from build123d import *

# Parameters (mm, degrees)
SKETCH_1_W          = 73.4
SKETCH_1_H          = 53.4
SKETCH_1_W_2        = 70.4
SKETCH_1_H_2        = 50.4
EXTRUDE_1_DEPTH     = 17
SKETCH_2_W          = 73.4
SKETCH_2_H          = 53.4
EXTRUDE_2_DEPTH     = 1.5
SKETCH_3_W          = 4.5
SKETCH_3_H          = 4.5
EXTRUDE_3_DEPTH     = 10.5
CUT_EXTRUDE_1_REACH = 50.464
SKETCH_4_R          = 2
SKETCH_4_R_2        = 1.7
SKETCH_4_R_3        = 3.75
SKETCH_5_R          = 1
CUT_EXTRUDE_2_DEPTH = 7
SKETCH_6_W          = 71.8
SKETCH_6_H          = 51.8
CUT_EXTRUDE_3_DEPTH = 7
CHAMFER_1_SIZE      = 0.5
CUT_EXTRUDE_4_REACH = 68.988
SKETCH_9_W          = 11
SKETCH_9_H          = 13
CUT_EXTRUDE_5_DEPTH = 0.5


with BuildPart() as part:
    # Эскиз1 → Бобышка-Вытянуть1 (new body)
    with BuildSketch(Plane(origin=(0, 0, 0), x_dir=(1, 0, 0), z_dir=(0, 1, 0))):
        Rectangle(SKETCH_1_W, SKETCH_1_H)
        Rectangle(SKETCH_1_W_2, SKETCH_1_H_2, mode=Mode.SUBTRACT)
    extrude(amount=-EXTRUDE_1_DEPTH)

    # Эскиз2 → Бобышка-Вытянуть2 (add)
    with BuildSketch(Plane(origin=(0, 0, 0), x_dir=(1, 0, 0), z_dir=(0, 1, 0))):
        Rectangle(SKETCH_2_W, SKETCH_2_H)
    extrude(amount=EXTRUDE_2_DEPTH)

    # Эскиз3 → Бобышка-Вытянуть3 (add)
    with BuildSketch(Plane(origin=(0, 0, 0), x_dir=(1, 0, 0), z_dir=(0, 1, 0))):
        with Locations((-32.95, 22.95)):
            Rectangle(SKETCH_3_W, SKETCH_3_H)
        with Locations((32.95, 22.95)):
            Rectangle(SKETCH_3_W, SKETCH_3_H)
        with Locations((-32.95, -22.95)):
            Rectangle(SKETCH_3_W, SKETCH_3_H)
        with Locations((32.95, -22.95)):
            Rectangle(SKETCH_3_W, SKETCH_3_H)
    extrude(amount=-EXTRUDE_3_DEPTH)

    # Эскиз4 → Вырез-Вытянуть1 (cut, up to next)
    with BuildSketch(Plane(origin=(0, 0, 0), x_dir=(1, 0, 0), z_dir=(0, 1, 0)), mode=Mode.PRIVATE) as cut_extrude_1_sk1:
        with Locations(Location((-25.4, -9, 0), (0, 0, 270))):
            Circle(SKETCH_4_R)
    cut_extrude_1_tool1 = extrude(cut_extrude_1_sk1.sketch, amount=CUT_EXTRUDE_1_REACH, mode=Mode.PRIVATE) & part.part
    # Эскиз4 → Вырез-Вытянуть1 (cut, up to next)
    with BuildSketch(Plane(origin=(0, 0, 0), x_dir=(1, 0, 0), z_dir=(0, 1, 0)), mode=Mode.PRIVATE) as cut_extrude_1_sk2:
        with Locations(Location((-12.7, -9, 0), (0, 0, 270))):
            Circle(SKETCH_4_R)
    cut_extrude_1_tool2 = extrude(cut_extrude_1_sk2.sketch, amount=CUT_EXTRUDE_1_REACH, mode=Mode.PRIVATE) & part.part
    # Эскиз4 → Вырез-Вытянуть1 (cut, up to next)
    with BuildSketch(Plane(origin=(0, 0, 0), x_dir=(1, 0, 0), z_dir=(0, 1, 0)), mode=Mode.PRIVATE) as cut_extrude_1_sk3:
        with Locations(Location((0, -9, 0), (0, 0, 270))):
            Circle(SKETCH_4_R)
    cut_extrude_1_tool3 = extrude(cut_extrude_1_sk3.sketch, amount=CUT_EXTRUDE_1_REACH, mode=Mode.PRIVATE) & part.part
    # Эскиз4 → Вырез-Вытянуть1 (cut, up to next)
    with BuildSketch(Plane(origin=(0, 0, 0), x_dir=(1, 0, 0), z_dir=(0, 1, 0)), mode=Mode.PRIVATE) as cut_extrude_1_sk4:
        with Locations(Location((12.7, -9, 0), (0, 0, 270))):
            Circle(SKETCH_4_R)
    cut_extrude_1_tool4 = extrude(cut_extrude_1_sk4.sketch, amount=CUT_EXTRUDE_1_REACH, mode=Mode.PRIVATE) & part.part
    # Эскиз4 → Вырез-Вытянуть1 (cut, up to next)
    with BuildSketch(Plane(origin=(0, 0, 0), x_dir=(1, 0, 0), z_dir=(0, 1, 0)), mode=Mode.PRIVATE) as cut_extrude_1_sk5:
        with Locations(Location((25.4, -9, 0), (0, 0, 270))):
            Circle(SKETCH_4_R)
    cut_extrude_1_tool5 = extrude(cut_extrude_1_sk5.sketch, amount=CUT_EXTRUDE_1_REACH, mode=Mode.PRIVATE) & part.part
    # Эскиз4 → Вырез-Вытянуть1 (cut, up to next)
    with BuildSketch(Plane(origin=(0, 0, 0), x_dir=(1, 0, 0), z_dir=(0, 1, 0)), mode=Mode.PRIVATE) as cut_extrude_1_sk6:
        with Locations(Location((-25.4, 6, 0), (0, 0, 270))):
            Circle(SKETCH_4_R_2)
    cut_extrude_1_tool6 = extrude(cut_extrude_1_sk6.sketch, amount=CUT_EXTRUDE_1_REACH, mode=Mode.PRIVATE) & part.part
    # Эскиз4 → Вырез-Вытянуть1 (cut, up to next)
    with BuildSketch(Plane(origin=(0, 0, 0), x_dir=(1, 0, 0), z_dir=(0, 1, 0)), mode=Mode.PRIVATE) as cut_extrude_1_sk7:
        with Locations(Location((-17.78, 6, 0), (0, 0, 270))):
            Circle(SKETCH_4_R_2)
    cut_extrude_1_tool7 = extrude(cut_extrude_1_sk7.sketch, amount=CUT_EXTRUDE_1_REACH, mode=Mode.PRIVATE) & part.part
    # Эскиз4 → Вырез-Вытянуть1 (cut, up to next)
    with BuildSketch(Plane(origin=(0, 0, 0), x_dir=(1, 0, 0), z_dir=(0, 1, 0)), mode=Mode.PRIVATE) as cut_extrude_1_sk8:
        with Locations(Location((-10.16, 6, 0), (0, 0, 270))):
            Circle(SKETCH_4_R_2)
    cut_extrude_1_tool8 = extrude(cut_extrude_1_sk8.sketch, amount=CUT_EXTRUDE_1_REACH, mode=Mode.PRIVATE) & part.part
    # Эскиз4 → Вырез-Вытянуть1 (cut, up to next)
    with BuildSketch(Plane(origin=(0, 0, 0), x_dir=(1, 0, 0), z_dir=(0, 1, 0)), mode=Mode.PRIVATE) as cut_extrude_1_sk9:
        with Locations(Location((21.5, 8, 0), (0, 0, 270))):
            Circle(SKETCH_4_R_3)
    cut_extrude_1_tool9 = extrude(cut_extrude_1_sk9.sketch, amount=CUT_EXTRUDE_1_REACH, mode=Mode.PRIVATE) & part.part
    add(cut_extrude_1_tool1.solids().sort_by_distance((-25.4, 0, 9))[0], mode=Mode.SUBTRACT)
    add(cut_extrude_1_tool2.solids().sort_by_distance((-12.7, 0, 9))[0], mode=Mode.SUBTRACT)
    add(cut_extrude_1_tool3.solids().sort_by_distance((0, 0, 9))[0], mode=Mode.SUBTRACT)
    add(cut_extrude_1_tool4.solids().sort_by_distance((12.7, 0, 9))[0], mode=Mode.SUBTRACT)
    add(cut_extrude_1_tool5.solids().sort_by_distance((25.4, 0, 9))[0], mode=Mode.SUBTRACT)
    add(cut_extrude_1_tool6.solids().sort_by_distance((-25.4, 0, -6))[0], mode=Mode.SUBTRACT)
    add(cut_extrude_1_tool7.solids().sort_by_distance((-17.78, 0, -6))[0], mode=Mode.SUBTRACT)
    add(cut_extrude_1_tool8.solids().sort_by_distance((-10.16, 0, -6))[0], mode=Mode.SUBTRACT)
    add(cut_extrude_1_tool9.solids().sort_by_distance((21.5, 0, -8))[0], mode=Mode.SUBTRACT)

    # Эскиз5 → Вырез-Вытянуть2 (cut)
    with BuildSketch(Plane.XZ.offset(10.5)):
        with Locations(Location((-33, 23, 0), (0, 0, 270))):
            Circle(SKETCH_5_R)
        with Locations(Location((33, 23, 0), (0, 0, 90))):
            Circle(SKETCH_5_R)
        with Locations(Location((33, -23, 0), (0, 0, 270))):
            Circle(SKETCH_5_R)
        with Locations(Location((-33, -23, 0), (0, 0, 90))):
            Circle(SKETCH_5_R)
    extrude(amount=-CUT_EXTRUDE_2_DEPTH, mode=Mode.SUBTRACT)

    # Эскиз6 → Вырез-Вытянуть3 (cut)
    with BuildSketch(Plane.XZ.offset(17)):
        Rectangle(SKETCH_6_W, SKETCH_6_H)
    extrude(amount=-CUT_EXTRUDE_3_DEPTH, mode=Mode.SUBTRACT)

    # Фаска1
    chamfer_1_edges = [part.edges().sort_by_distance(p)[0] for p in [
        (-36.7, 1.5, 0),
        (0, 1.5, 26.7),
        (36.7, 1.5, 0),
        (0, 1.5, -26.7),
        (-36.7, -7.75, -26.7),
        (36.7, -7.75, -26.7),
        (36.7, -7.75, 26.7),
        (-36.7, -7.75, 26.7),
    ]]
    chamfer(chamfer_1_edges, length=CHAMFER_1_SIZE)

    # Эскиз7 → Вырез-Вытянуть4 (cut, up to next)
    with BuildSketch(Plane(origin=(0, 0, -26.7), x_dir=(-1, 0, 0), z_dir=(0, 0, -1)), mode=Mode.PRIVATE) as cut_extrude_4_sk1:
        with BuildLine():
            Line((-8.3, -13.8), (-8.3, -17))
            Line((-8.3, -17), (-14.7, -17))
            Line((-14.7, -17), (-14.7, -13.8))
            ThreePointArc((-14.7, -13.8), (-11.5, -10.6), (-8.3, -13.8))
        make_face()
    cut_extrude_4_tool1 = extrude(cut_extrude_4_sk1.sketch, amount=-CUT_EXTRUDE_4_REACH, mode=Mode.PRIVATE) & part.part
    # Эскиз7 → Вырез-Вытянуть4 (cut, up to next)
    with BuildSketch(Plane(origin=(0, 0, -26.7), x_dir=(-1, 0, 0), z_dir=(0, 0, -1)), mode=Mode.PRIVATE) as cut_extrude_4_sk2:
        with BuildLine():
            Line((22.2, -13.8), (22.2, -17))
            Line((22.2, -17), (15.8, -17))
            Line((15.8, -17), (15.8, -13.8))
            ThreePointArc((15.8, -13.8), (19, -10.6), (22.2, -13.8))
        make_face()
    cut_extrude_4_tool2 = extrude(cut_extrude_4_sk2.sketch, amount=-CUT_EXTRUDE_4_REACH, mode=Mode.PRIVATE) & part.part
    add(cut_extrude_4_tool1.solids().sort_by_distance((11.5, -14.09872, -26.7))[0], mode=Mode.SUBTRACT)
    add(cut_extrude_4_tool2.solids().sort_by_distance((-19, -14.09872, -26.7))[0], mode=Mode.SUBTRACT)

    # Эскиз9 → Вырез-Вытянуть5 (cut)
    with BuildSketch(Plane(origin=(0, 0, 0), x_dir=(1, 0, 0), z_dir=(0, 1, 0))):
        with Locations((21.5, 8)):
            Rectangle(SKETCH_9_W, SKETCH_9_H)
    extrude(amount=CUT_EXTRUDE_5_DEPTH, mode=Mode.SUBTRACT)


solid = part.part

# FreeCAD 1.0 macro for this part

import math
import FreeCAD as App
import Part
import Sketcher

V = App.Vector


def edges_at(feature, points):
    """Names of the edges that pass closest to the given points."""
    edges = feature.Shape.Edges
    near = lambda p: min(range(len(edges)), key=lambda i: edges[i].distToShape(Part.Vertex(*p))[0])
    return sorted({f"Edge{near(p) + 1}" for p in points})


def add_polygon(sketch, points):
    """Adds a closed chain of lines whose ends are joined by coincident constraints."""
    first, n = sketch.GeometryCount, len(points)
    for a, b in zip(points, points[1:] + points[:1]):
        sketch.addGeometry(Part.LineSegment(App.Vector(*a, 0), App.Vector(*b, 0)), False)
    for i in range(n):
        sketch.addConstraint(Sketcher.Constraint("Coincident", first + i, 2, first + (i + 1) % n, 1))

doc = App.newDocument("Part")
body = doc.addObject("PartDesign::Body", "Body")

# Sketch on XZ plane
sketch1 = doc.addObject("Sketcher::SketchObject", "Sketch")
body.addObject(sketch1)
sketch1.AttachmentSupport = (doc.XZ_Plane, [""])
sketch1.MapMode = "FlatFace"
add_polygon(sketch1, [(-37, -27), (-37, 27), (37, 27), (37, -27)])  # lines 0-3
add_polygon(sketch1, [(35, 25), (-35, 25), (-35, -25), (35, -25)])  # lines 4-7
sketch1.addConstraint([
    Sketcher.Constraint("Vertical", 0),
    Sketcher.Constraint("Horizontal", 1),
    Sketcher.Constraint("Vertical", 2),
    Sketcher.Constraint("Horizontal", 3),
    Sketcher.Constraint("Horizontal", 4),
    Sketcher.Constraint("Vertical", 5),
    Sketcher.Constraint("Horizontal", 6),
    Sketcher.Constraint("Vertical", 7),
    Sketcher.Constraint("Symmetric", 0, 2, 2, 2, -1, 1),
    Sketcher.Constraint("Symmetric", 4, 2, 6, 2, -1, 1),
    Sketcher.Constraint("DistanceX", 1, 1, 1, 2, 73.4),
    Sketcher.Constraint("DistanceX", 4, 2, 4, 1, 70.4),
    Sketcher.Constraint("DistanceY", 0, 1, 0, 2, 53.4),
    Sketcher.Constraint("DistanceY", 5, 2, 5, 1, 50.4),
])
pad1 = doc.addObject("PartDesign::Pad", "Pad")
body.addObject(pad1)
pad1.Profile = sketch1
pad1.Length = 17

# Sketch on XZ plane
sketch2 = doc.addObject("Sketcher::SketchObject", "Sketch001")
body.addObject(sketch2)
sketch2.AttachmentSupport = (doc.XZ_Plane, [""])
sketch2.MapMode = "FlatFace"
add_polygon(sketch2, [(-37, -27), (-37, 27), (37, 27), (37, -27)])  # lines 0-3
sketch2.addConstraint([
    Sketcher.Constraint("Vertical", 0),
    Sketcher.Constraint("Horizontal", 1),
    Sketcher.Constraint("Vertical", 2),
    Sketcher.Constraint("Horizontal", 3),
    Sketcher.Constraint("Symmetric", 0, 2, 2, 2, -1, 1),
    Sketcher.Constraint("DistanceX", 1, 1, 1, 2, 73.4),
    Sketcher.Constraint("DistanceY", 0, 1, 0, 2, 53.4),
])
pad2 = doc.addObject("PartDesign::Pad", "Pad001")
body.addObject(pad2)
pad2.Profile = sketch2
pad2.Length = 1.5
pad2.Reversed = True

# Sketch on XZ plane
sketch3 = doc.addObject("Sketcher::SketchObject", "Sketch002")
body.addObject(sketch3)
sketch3.AttachmentSupport = (doc.XZ_Plane, [""])
sketch3.MapMode = "FlatFace"
add_polygon(sketch3, [(-35.2, -25.2), (-35.2, -20.7), (-30.7, -20.7), (-30.7, -25.2)])  # lines 0-3
add_polygon(sketch3, [(30.7, -25.2), (30.7, -20.7), (35.2, -20.7), (35.2, -25.2)])  # lines 4-7
add_polygon(sketch3, [(-35.2, 20.7), (-35.2, 25.2), (-30.7, 25.2), (-30.7, 20.7)])  # lines 8-11
add_polygon(sketch3, [(30.7, 20.7), (30.7, 25.2), (35.2, 25.2), (35.2, 20.7)])  # lines 12-15
sketch3.addConstraint([
    Sketcher.Constraint("Vertical", 0),
    Sketcher.Constraint("Horizontal", 1),
    Sketcher.Constraint("Vertical", 2),
    Sketcher.Constraint("Horizontal", 3),
    Sketcher.Constraint("Vertical", 4),
    Sketcher.Constraint("Horizontal", 5),
    Sketcher.Constraint("Vertical", 6),
    Sketcher.Constraint("Horizontal", 7),
    Sketcher.Constraint("Vertical", 8),
    Sketcher.Constraint("Horizontal", 9),
    Sketcher.Constraint("Vertical", 10),
    Sketcher.Constraint("Horizontal", 11),
    Sketcher.Constraint("Vertical", 12),
    Sketcher.Constraint("Horizontal", 13),
    Sketcher.Constraint("Vertical", 14),
    Sketcher.Constraint("Horizontal", 15),
    Sketcher.Constraint("Symmetric", 6, 2, 8, 2, -1, 1),
    Sketcher.Constraint("Symmetric", 4, 2, 10, 2, -1, 1),
    Sketcher.Constraint("Symmetric", 2, 2, 12, 2, -1, 1),
    Sketcher.Constraint("Symmetric", 0, 2, 14, 2, -1, 1),
    Sketcher.Constraint("Symmetric", 1, 2, 4, 2, -2),
    Sketcher.Constraint("Symmetric", 3, 2, 6, 2, -2),
    Sketcher.Constraint("Equal", 15, 0),
    Sketcher.Constraint("DistanceX", 1, 1, 1, 2, 4.5),
    Sketcher.Constraint("DistanceX", 0, 2, -1, 1, 35.2),
    Sketcher.Constraint("DistanceY", 0, 2, -1, 1, 20.7),
])
pad3 = doc.addObject("PartDesign::Pad", "Pad002")
body.addObject(pad3)
pad3.Profile = sketch3
pad3.Length = 10.5

# Sketch on XZ plane
sketch4 = doc.addObject("Sketcher::SketchObject", "Sketch003")
body.addObject(sketch4)
sketch4.AttachmentSupport = (doc.XZ_Plane, [""])
sketch4.MapMode = "FlatFace"
sketch4.addGeometry(Part.Circle(V(-25.4, 9, 0), V(0, 0, 1), 2), False)
sketch4.addConstraint([
    Sketcher.Constraint("Diameter", 0, 4.0),
    Sketcher.Constraint("DistanceY", -1, 1, 0, 3, 9.0),
    Sketcher.Constraint("DistanceX", 0, 3, -1, 1, 25.4),
])
pocket1 = doc.addObject("PartDesign::Pocket", "Pocket")
body.addObject(pocket1)
pocket1.Profile = sketch4
pocket1.Type = "UpToFirst"

# Sketch on XZ plane
sketch5 = doc.addObject("Sketcher::SketchObject", "Sketch004")
body.addObject(sketch5)
sketch5.AttachmentSupport = (doc.XZ_Plane, [""])
sketch5.MapMode = "FlatFace"
sketch5.addGeometry(Part.Circle(V(-12.7, 9, 0), V(0, 0, 1), 2), False)
sketch5.addConstraint([
    Sketcher.Constraint("Diameter", 0, 4.0),
    Sketcher.Constraint("DistanceY", -1, 1, 0, 3, 9.0),
    Sketcher.Constraint("DistanceX", 0, 3, -1, 1, 12.7),
])
pocket2 = doc.addObject("PartDesign::Pocket", "Pocket001")
body.addObject(pocket2)
pocket2.Profile = sketch5
pocket2.Type = "UpToFirst"

# Sketch on XZ plane
sketch6 = doc.addObject("Sketcher::SketchObject", "Sketch005")
body.addObject(sketch6)
sketch6.AttachmentSupport = (doc.XZ_Plane, [""])
sketch6.MapMode = "FlatFace"
sketch6.addGeometry(Part.Circle(V(0, 9, 0), V(0, 0, 1), 2), False)
sketch6.addConstraint([
    Sketcher.Constraint("PointOnObject", 0, 3, -2),
    Sketcher.Constraint("Diameter", 0, 4.0),
    Sketcher.Constraint("DistanceY", -1, 1, 0, 3, 9.0),
])
pocket3 = doc.addObject("PartDesign::Pocket", "Pocket002")
body.addObject(pocket3)
pocket3.Profile = sketch6
pocket3.Type = "UpToFirst"

# Sketch on XZ plane
sketch7 = doc.addObject("Sketcher::SketchObject", "Sketch006")
body.addObject(sketch7)
sketch7.AttachmentSupport = (doc.XZ_Plane, [""])
sketch7.MapMode = "FlatFace"
sketch7.addGeometry(Part.Circle(V(12.7, 9, 0), V(0, 0, 1), 2), False)
sketch7.addConstraint([
    Sketcher.Constraint("Diameter", 0, 4.0),
    Sketcher.Constraint("DistanceY", -1, 1, 0, 3, 9.0),
    Sketcher.Constraint("DistanceX", -1, 1, 0, 3, 12.7),
])
pocket4 = doc.addObject("PartDesign::Pocket", "Pocket003")
body.addObject(pocket4)
pocket4.Profile = sketch7
pocket4.Type = "UpToFirst"

# Sketch on XZ plane
sketch8 = doc.addObject("Sketcher::SketchObject", "Sketch007")
body.addObject(sketch8)
sketch8.AttachmentSupport = (doc.XZ_Plane, [""])
sketch8.MapMode = "FlatFace"
sketch8.addGeometry(Part.Circle(V(25.4, 9, 0), V(0, 0, 1), 2), False)
sketch8.addConstraint([
    Sketcher.Constraint("Diameter", 0, 4.0),
    Sketcher.Constraint("DistanceY", -1, 1, 0, 3, 9.0),
    Sketcher.Constraint("DistanceX", -1, 1, 0, 3, 25.4),
])
pocket5 = doc.addObject("PartDesign::Pocket", "Pocket004")
body.addObject(pocket5)
pocket5.Profile = sketch8
pocket5.Type = "UpToFirst"

# Sketch on XZ plane
sketch9 = doc.addObject("Sketcher::SketchObject", "Sketch008")
body.addObject(sketch9)
sketch9.AttachmentSupport = (doc.XZ_Plane, [""])
sketch9.MapMode = "FlatFace"
sketch9.addGeometry(Part.Circle(V(-25.4, -6, 0), V(0, 0, 1), 1.7), False)
sketch9.addConstraint([
    Sketcher.Constraint("Diameter", 0, 3.4),
    Sketcher.Constraint("DistanceY", 0, 3, -1, 1, 6.0),
    Sketcher.Constraint("DistanceX", 0, 3, -1, 1, 25.4),
])
pocket6 = doc.addObject("PartDesign::Pocket", "Pocket005")
body.addObject(pocket6)
pocket6.Profile = sketch9
pocket6.Type = "UpToFirst"

# Sketch on XZ plane
sketch10 = doc.addObject("Sketcher::SketchObject", "Sketch009")
body.addObject(sketch10)
sketch10.AttachmentSupport = (doc.XZ_Plane, [""])
sketch10.MapMode = "FlatFace"
sketch10.addGeometry(Part.Circle(V(-17.8, -6, 0), V(0, 0, 1), 1.7), False)
sketch10.addConstraint([
    Sketcher.Constraint("Diameter", 0, 3.4),
    Sketcher.Constraint("DistanceY", 0, 3, -1, 1, 6.0),
    Sketcher.Constraint("DistanceX", 0, 3, -1, 1, 17.78),
])
pocket7 = doc.addObject("PartDesign::Pocket", "Pocket006")
body.addObject(pocket7)
pocket7.Profile = sketch10
pocket7.Type = "UpToFirst"

# Sketch on XZ plane
sketch11 = doc.addObject("Sketcher::SketchObject", "Sketch010")
body.addObject(sketch11)
sketch11.AttachmentSupport = (doc.XZ_Plane, [""])
sketch11.MapMode = "FlatFace"
sketch11.addGeometry(Part.Circle(V(-10.2, -6, 0), V(0, 0, 1), 1.7), False)
sketch11.addConstraint([
    Sketcher.Constraint("Diameter", 0, 3.4),
    Sketcher.Constraint("DistanceY", 0, 3, -1, 1, 6.0),
    Sketcher.Constraint("DistanceX", 0, 3, -1, 1, 10.16),
])
pocket8 = doc.addObject("PartDesign::Pocket", "Pocket007")
body.addObject(pocket8)
pocket8.Profile = sketch11
pocket8.Type = "UpToFirst"

# Sketch on XZ plane
sketch12 = doc.addObject("Sketcher::SketchObject", "Sketch011")
body.addObject(sketch12)
sketch12.AttachmentSupport = (doc.XZ_Plane, [""])
sketch12.MapMode = "FlatFace"
sketch12.addGeometry(Part.Circle(V(21.5, -8, 0), V(0, 0, 1), 3.8), False)
sketch12.addConstraint([
    Sketcher.Constraint("Diameter", 0, 7.5),
    Sketcher.Constraint("DistanceY", 0, 3, -1, 1, 8.0),
    Sketcher.Constraint("DistanceX", -1, 1, 0, 3, 21.5),
])
pocket9 = doc.addObject("PartDesign::Pocket", "Pocket008")
body.addObject(pocket9)
pocket9.Profile = sketch12
pocket9.Type = "UpToFirst"

# Sketch on XZ plane
sketch13 = doc.addObject("Sketcher::SketchObject", "Sketch012")
body.addObject(sketch13)
sketch13.AttachmentSupport = (doc.XZ_Plane, [""])
sketch13.MapMode = "FlatFace"
sketch13.AttachmentOffset = App.Placement(V(0, 0, 10.5), App.Rotation())
sketch13.addGeometry([
    Part.Circle(V(-33, 23, 0), V(0, 0, 1), 1),
    Part.Circle(V(33, 23, 0), V(0, 0, 1), 1),
    Part.Circle(V(33, -23, 0), V(0, 0, 1), 1),
    Part.Circle(V(-33, -23, 0), V(0, 0, 1), 1),
], False)
sketch13.addConstraint([
    Sketcher.Constraint("Equal", 0, 1),
    Sketcher.Constraint("Equal", 1, 2),
    Sketcher.Constraint("Equal", 2, 3),
    Sketcher.Constraint("Symmetric", 0, 3, 2, 3, -1, 1),
    Sketcher.Constraint("Symmetric", 1, 3, 3, 3, -1, 1),
    Sketcher.Constraint("Symmetric", 0, 3, 1, 3, -2),
    Sketcher.Constraint("Diameter", 0, 2.0),
    Sketcher.Constraint("DistanceX", 0, 3, -1, 1, 33.0),
    Sketcher.Constraint("DistanceY", -1, 1, 0, 3, 23.0),
])
pocket10 = doc.addObject("PartDesign::Pocket", "Pocket009")
body.addObject(pocket10)
pocket10.Profile = sketch13
pocket10.Length = 7

# Sketch on XZ plane
sketch14 = doc.addObject("Sketcher::SketchObject", "Sketch013")
body.addObject(sketch14)
sketch14.AttachmentSupport = (doc.XZ_Plane, [""])
sketch14.MapMode = "FlatFace"
sketch14.AttachmentOffset = App.Placement(V(0, 0, 17), App.Rotation())
add_polygon(sketch14, [(-36, 26), (-36, -26), (36, -26), (36, 26)])  # lines 0-3
sketch14.addConstraint([
    Sketcher.Constraint("Vertical", 0),
    Sketcher.Constraint("Horizontal", 1),
    Sketcher.Constraint("Vertical", 2),
    Sketcher.Constraint("Horizontal", 3),
    Sketcher.Constraint("Symmetric", 0, 2, 2, 2, -1, 1),
    Sketcher.Constraint("DistanceX", 1, 1, 1, 2, 71.8),
    Sketcher.Constraint("DistanceY", 0, 2, 0, 1, 51.8),
])
pocket11 = doc.addObject("PartDesign::Pocket", "Pocket010")
body.addObject(pocket11)
pocket11.Profile = sketch14
pocket11.Length = 7
doc.recompute()

chamfer = doc.addObject("PartDesign::Chamfer", "Chamfer")
body.addObject(chamfer)
chamfer.Base = (pocket11, edges_at(pocket11, [
    (-36.7, 1.5, 0),
    (0, 1.5, 26.7),
    (36.7, 1.5, 0),
    (0, 1.5, -26.7),
    (-36.7, -7.75, -26.7),
    (36.7, -7.75, -26.7),
    (36.7, -7.75, 26.7),
    (-36.7, -7.75, 26.7),
]))
chamfer.Size = 0.5

# Sketch on XY plane
sketch15 = doc.addObject("Sketcher::SketchObject", "Sketch014")
body.addObject(sketch15)
sketch15.AttachmentSupport = (doc.XY_Plane, [""])
sketch15.MapMode = "FlatFace"
sketch15.AttachmentOffset = App.Placement(V(0, 0, -26.7), App.Rotation())
sketch15.addGeometry([
    Part.LineSegment(V(8.3, -17, 0), V(8.3, -13.8, 0)),
    Part.ArcOfCircle(Part.Circle(V(11.5, -13.8, 0), V(0, 0, 1), 3.2), math.radians(0), math.radians(180)),
    Part.LineSegment(V(14.7, -13.8, 0), V(14.7, -17, 0)),
    Part.LineSegment(V(14.7, -17, 0), V(8.3, -17, 0)),
], False)
sketch15.addConstraint([
    Sketcher.Constraint("Tangent", 0, 2, 1, 2),
    Sketcher.Constraint("Tangent", 1, 1, 2, 1),
    Sketcher.Constraint("Coincident", 2, 2, 3, 1),
    Sketcher.Constraint("Coincident", 3, 2, 0, 1),
    Sketcher.Constraint("Vertical", 0),
    Sketcher.Constraint("Vertical", 2),
    Sketcher.Constraint("Horizontal", 3),
    Sketcher.Constraint("Radius", 1, 3.2),
    Sketcher.Constraint("DistanceY", 0, 1, 0, 2, 3.2),
    Sketcher.Constraint("DistanceY", 2, 2, -1, 1, 17.0),
    Sketcher.Constraint("DistanceX", -1, 1, 1, 3, 11.5),
])
pocket12 = doc.addObject("PartDesign::Pocket", "Pocket011")
body.addObject(pocket12)
pocket12.Profile = sketch15
pocket12.Type = "UpToFirst"
pocket12.Reversed = True

# Sketch on XY plane
sketch16 = doc.addObject("Sketcher::SketchObject", "Sketch015")
body.addObject(sketch16)
sketch16.AttachmentSupport = (doc.XY_Plane, [""])
sketch16.MapMode = "FlatFace"
sketch16.AttachmentOffset = App.Placement(V(0, 0, -26.7), App.Rotation())
sketch16.addGeometry([
    Part.LineSegment(V(-22.2, -17, 0), V(-22.2, -13.8, 0)),
    Part.ArcOfCircle(Part.Circle(V(-19, -13.8, 0), V(0, 0, 1), 3.2), math.radians(0), math.radians(180)),
    Part.LineSegment(V(-15.8, -13.8, 0), V(-15.8, -17, 0)),
    Part.LineSegment(V(-15.8, -17, 0), V(-22.2, -17, 0)),
], False)
sketch16.addConstraint([
    Sketcher.Constraint("Tangent", 0, 2, 1, 2),
    Sketcher.Constraint("Tangent", 1, 1, 2, 1),
    Sketcher.Constraint("Coincident", 2, 2, 3, 1),
    Sketcher.Constraint("Coincident", 3, 2, 0, 1),
    Sketcher.Constraint("Vertical", 0),
    Sketcher.Constraint("Vertical", 2),
    Sketcher.Constraint("Horizontal", 3),
    Sketcher.Constraint("Radius", 1, 3.2),
    Sketcher.Constraint("DistanceY", 0, 1, 0, 2, 3.2),
    Sketcher.Constraint("DistanceX", 1, 3, -1, 1, 19.0),
    Sketcher.Constraint("DistanceY", 2, 2, -1, 1, 17.0),
])
pocket13 = doc.addObject("PartDesign::Pocket", "Pocket012")
body.addObject(pocket13)
pocket13.Profile = sketch16
pocket13.Type = "UpToFirst"
pocket13.Reversed = True

# Sketch on XZ plane
sketch17 = doc.addObject("Sketcher::SketchObject", "Sketch016")
body.addObject(sketch17)
sketch17.AttachmentSupport = (doc.XZ_Plane, [""])
sketch17.MapMode = "FlatFace"
add_polygon(sketch17, [(16, -14), (16, -2), (27, -2), (27, -14)])  # lines 0-3
sketch17.addConstraint([
    Sketcher.Constraint("Vertical", 0),
    Sketcher.Constraint("Horizontal", 1),
    Sketcher.Constraint("Vertical", 2),
    Sketcher.Constraint("Horizontal", 3),
    Sketcher.Constraint("DistanceX", 1, 1, 1, 2, 11.0),
    Sketcher.Constraint("DistanceY", 0, 1, 0, 2, 13.0),
    Sketcher.Constraint("DistanceX", -1, 1, 0, 2, 16.0),
    Sketcher.Constraint("DistanceY", 0, 2, -1, 1, 1.5),
])
pocket14 = doc.addObject("PartDesign::Pocket", "Pocket013")
body.addObject(pocket14)
pocket14.Profile = sketch17
pocket14.Length = 0.5

doc.recompute()
